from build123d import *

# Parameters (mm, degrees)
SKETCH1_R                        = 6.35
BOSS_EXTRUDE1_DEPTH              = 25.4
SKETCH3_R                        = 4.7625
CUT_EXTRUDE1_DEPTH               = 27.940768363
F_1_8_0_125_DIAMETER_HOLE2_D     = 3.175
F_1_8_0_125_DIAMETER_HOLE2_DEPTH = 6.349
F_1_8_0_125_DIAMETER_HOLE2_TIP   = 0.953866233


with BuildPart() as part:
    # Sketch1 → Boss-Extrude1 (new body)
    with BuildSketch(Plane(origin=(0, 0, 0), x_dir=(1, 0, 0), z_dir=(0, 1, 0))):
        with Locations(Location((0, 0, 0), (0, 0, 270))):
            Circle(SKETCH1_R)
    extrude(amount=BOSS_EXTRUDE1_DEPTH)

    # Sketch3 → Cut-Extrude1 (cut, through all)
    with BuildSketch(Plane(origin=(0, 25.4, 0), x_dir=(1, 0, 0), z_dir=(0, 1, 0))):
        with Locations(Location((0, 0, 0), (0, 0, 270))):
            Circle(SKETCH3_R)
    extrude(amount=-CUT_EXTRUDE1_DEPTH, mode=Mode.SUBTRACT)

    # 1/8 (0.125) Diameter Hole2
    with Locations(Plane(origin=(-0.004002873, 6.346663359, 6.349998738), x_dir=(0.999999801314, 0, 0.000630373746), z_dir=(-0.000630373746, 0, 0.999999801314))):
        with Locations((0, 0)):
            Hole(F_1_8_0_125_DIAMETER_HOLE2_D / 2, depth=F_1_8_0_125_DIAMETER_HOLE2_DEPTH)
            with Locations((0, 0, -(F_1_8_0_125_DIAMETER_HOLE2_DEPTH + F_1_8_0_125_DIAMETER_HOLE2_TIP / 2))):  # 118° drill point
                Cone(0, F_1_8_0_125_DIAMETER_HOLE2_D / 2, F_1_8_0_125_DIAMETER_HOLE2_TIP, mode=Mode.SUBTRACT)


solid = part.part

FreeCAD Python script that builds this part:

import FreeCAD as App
import Part
import Sketcher

V = App.Vector
Q = App.Units.Quantity

doc = App.newDocument("Part")
body = doc.addObject("PartDesign::Body", "Body")

sketch1 = doc.addObject("Sketcher::SketchObject", "Sketch")
body.addObject(sketch1)
sketch1.AttachmentSupport = (doc.XZ_Plane, [""])
sketch1.MapMode = "FlatFace"
sketch1.addGeometry(Part.Circle(V(0, 0, 0), V(0, 0, 1), 6), False)
sketch1.addConstraint(Sketcher.Constraint("Coincident", 0, 3, -1, 1))
sketch1.addConstraint(Sketcher.Constraint("Diameter", 0, Q("0.5 in")))
pad1 = doc.addObject("PartDesign::Pad", "Pad")
body.addObject(pad1)
pad1.Profile = sketch1
pad1.Length = Q("1 in")
pad1.Reversed = True

sketch2 = doc.addObject("Sketcher::SketchObject", "Sketch001")
body.addObject(sketch2)
sketch2.AttachmentSupport = (doc.XZ_Plane, [""])
sketch2.MapMode = "FlatFace"
sketch2.AttachmentOffset = App.Placement(V(0, 0, -1 * 25.4), App.Rotation())
sketch2.addGeometry(Part.Circle(V(0, 0, 0), V(0, 0, 1), 4.8), False)
sketch2.addConstraint(Sketcher.Constraint("Coincident", 0, 3, -1, 1))
sketch2.addConstraint(Sketcher.Constraint("Diameter", 0, Q("0.375 in")))
pocket1 = doc.addObject("PartDesign::Pocket", "Pocket")
body.addObject(pocket1)
pocket1.Profile = sketch2
pocket1.Type = "ThroughAll"
pocket1.Reversed = True

sketch3 = doc.addObject("Sketcher::SketchObject", "Sketch002")
body.addObject(sketch3)
sketch3.Placement = App.Placement(V(-0.004003, 0, 6.349999), App.Rotation(V(0.999999801, 0, 0.000630374), V(0, 0.999999999, 0), V(-0.000630374, 0, 0.999999801), "ZXY"))
sketch3.addGeometry(Part.Circle(V(0, 6.3, 0), V(0, 0, 1), 1.6), False)
sketch3.addConstraint(Sketcher.Constraint("PointOnObject", 0, 3, -2))
sketch3.addConstraint(Sketcher.Constraint("Diameter", 0, Q("0.125 in")))
sketch3.addConstraint(Sketcher.Constraint("DistanceY", -1, 1, 0, 3, Q("6.346663 mm")))
doc.recompute()
hole = doc.addObject("PartDesign::Hole", "Hole")
body.addObject(hole)
hole.Profile = sketch3
hole.ThreadType = "None"
hole.Diameter = Q("0.125 in")
hole.DepthType = "Dimension"
hole.Depth = 6.349
hole.DrillPoint = "Angled"
hole.DrillPointAngle = 118

doc.recompute()
